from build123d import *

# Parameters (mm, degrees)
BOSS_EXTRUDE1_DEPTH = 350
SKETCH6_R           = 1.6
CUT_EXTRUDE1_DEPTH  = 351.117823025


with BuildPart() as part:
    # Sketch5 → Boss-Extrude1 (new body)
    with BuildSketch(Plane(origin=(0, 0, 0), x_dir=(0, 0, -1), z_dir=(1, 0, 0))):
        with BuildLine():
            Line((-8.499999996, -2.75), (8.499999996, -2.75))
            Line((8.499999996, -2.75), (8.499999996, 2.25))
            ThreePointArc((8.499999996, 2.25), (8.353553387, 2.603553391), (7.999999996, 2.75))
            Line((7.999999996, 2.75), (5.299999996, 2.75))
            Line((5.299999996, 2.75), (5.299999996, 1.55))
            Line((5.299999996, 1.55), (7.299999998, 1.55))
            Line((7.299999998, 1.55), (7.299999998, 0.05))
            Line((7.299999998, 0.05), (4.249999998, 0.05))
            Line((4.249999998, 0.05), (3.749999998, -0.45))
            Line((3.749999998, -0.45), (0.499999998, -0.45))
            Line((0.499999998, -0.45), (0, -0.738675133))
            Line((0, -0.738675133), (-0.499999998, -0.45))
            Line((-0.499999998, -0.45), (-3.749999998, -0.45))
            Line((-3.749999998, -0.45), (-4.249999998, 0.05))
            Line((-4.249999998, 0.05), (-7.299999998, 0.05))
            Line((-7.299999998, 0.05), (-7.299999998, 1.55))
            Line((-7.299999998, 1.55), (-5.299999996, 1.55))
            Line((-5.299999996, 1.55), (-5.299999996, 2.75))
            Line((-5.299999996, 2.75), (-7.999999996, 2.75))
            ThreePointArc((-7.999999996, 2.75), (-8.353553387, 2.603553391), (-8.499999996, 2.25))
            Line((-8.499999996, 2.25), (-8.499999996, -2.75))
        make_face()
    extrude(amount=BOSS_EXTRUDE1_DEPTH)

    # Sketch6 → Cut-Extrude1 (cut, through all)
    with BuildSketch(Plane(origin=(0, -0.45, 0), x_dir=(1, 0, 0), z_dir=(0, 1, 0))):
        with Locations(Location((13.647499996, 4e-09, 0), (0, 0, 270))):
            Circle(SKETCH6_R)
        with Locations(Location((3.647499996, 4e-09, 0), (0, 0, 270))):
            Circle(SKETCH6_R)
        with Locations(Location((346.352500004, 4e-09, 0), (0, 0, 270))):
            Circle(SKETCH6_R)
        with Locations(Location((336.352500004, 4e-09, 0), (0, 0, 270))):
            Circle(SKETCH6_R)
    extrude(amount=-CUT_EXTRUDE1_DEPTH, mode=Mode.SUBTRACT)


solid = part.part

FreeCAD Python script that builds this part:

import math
import FreeCAD as App
import Part
import Sketcher
from FreeCAD import Vector
Q = App.Units.Quantity

doc = App.newDocument("Part")
body = doc.addObject("PartDesign::Body", "Body")

# Sketch on YZ plane
sketch1 = doc.addObject("Sketcher::SketchObject", "Sketch")
body.addObject(sketch1)
sketch1.AttachmentSupport = (doc.YZ_Plane, [""])
sketch1.MapMode = "FlatFace"
sketch1.addGeometry([
    Part.LineSegment(Vector(-2.75, 8.5, 0), Vector(-2.75, -8.5, 0)),  # 0
    Part.LineSegment(Vector(-2.75, -8.5, 0), Vector(2.25, -8.5, 0)),  # 1
    Part.ArcOfCircle(Part.Circle(Vector(2.25, -8, 0), Vector(0, 0, 1), 0.5), math.radians(-90), math.radians(0)),  # 2
    Part.LineSegment(Vector(2.75, -8, 0), Vector(2.75, -5.3, 0)),  # 3
    Part.LineSegment(Vector(2.75, -5.3, 0), Vector(1.55, -5.3, 0)),  # 4
    Part.LineSegment(Vector(1.55, -5.3, 0), Vector(1.55, -7.3, 0)),  # 5
    Part.LineSegment(Vector(1.55, -7.3, 0), Vector(0.05, -7.3, 0)),  # 6
    Part.LineSegment(Vector(0.05, -7.3, 0), Vector(0.05, -4.25, 0)),  # 7
    Part.LineSegment(Vector(0.05, -4.25, 0), Vector(-0.45, -3.75, 0)),  # 8
    Part.LineSegment(Vector(-0.45, -3.75, 0), Vector(-0.45, -0.5, 0)),  # 9
    Part.LineSegment(Vector(-0.45, -0.5, 0), Vector(-0.74, 0, 0)),  # 10
    Part.LineSegment(Vector(-0.74, 0, 0), Vector(-0.45, 0.5, 0)),  # 11
    Part.LineSegment(Vector(-0.45, 0.5, 0), Vector(-0.45, 3.75, 0)),  # 12
    Part.LineSegment(Vector(-0.45, 3.75, 0), Vector(0.05, 4.25, 0)),  # 13
    Part.LineSegment(Vector(0.05, 4.25, 0), Vector(0.05, 7.3, 0)),  # 14
    Part.LineSegment(Vector(0.05, 7.3, 0), Vector(1.55, 7.3, 0)),  # 15
    Part.LineSegment(Vector(1.55, 7.3, 0), Vector(1.55, 5.3, 0)),  # 16
    Part.LineSegment(Vector(1.55, 5.3, 0), Vector(2.75, 5.3, 0)),  # 17
    Part.LineSegment(Vector(2.75, 5.3, 0), Vector(2.75, 8, 0)),  # 18
    Part.ArcOfCircle(Part.Circle(Vector(2.25, 8, 0), Vector(0, 0, 1), 0.5), math.radians(0), math.radians(90)),  # 19
    Part.LineSegment(Vector(2.25, 8.5, 0), Vector(-2.75, 8.5, 0)),  # 20
], False)
sketch1.addConstraint([
    Sketcher.Constraint("Coincident", 0, 2, 1, 1),
    Sketcher.Constraint("Tangent", 1, 2, 2, 1),
    Sketcher.Constraint("Tangent", 2, 2, 3, 1),
    Sketcher.Constraint("Coincident", 3, 2, 4, 1),
    Sketcher.Constraint("Coincident", 4, 2, 5, 1),
    Sketcher.Constraint("Coincident", 5, 2, 6, 1),
    Sketcher.Constraint("Coincident", 6, 2, 7, 1),
    Sketcher.Constraint("Coincident", 7, 2, 8, 1),
    Sketcher.Constraint("Coincident", 8, 2, 9, 1),
    Sketcher.Constraint("Coincident", 9, 2, 10, 1),
    Sketcher.Constraint("Coincident", 10, 2, 11, 1),
    Sketcher.Constraint("Coincident", 11, 2, 12, 1),
    Sketcher.Constraint("Coincident", 12, 2, 13, 1),
    Sketcher.Constraint("Coincident", 13, 2, 14, 1),
    Sketcher.Constraint("Coincident", 14, 2, 15, 1),
    Sketcher.Constraint("Coincident", 15, 2, 16, 1),
    Sketcher.Constraint("Coincident", 16, 2, 17, 1),
    Sketcher.Constraint("Coincident", 17, 2, 18, 1),
    Sketcher.Constraint("Tangent", 18, 2, 19, 1),
    Sketcher.Constraint("Tangent", 19, 2, 20, 1),
    Sketcher.Constraint("Coincident", 20, 2, 0, 1),
    Sketcher.Constraint("Vertical", 0),
    Sketcher.Constraint("Horizontal", 1),
    Sketcher.Constraint("Vertical", 3),
    Sketcher.Constraint("Horizontal", 4),
    Sketcher.Constraint("Vertical", 5),
    Sketcher.Constraint("Horizontal", 6),
    Sketcher.Constraint("Vertical", 7),
    Sketcher.Constraint("Vertical", 9),
    Sketcher.Constraint("Vertical", 12),
    Sketcher.Constraint("Vertical", 14),
    Sketcher.Constraint("Horizontal", 15),
    Sketcher.Constraint("Vertical", 16),
    Sketcher.Constraint("Horizontal", 17),
    Sketcher.Constraint("Vertical", 18),
    Sketcher.Constraint("Horizontal", 20),
    Sketcher.Constraint("Equal", 2, 19),
    Sketcher.Constraint("Symmetric", 2, 3, 19, 3, -1),
    Sketcher.Constraint("Symmetric", 9, 2, 11, 2, -1),
    Sketcher.Constraint("Symmetric", 7, 2, 13, 2, -1),
    Sketcher.Constraint("Symmetric", 5, 2, 15, 2, -1),
    Sketcher.Constraint("PointOnObject", 10, 2, -1),
    Sketcher.Constraint("Perpendicular", 8, 13),
    Sketcher.Constraint("Equal", 9, 12),
    Sketcher.Constraint("Equal", 5, 16),
    Sketcher.Constraint("Radius", 2, 0.5),
    Sketcher.Constraint("DistanceX", 1, 1, 1, 2, 5.0),
    Sketcher.Constraint("DistanceY", 0, 2, 0, 1, 17.0),
    Sketcher.Constraint("DistanceY", 5, 2, 5, 1, 2.0),
    Sketcher.Constraint("Angle", 10, Q("120 deg")),
    Sketcher.Constraint("DistanceX", 4, 2, 4, 1, 1.2),
    Sketcher.Constraint("DistanceX", 6, 2, 6, 1, 1.5),
    Sketcher.Constraint("DistanceY", 3, 1, 3, 2, 2.7),
    Sketcher.Constraint("DistanceX", 8, 2, 4, 2, 2.0),
    Sketcher.Constraint("DistanceY", 9, 2, 11, 2, 1.0),
    Sketcher.Constraint("DistanceY", 7, 1, 7, 2, 3.05),
    Sketcher.Constraint("DistanceX", -1, 1, 2, 3, 2.25),
])
pad1 = doc.addObject("PartDesign::Pad", "Pad")
body.addObject(pad1)
pad1.Profile = sketch1
pad1.Length = 350

# Sketch on XZ plane
sketch2 = doc.addObject("Sketcher::SketchObject", "Sketch001")
body.addObject(sketch2)
sketch2.AttachmentSupport = (doc.XZ_Plane, [""])
sketch2.MapMode = "FlatFace"
sketch2.AttachmentOffset = App.Placement(Vector(0, 0, 0.45), App.Rotation())
sketch2.addGeometry([
    Part.Circle(Vector(13.6, 0, 0), Vector(0, 0, 1), 1.6),
    Part.Circle(Vector(3.6, 0, 0), Vector(0, 0, 1), 1.6),
    Part.Circle(Vector(346.4, 0, 0), Vector(0, 0, 1), 1.6),
    Part.Circle(Vector(336.4, 0, 0), Vector(0, 0, 1), 1.6),
], False)
sketch2.addConstraint([
    Sketcher.Constraint("Equal", 0, 1),
    Sketcher.Constraint("Equal", 1, 2),
    Sketcher.Constraint("Equal", 2, 3),
    Sketcher.Constraint("PointOnObject", 0, 3, -1),
    Sketcher.Constraint("PointOnObject", 1, 3, -1),
    Sketcher.Constraint("PointOnObject", 2, 3, -1),
    Sketcher.Constraint("PointOnObject", 3, 3, -1),
    Sketcher.Constraint("Diameter", 0, 3.2),
    Sketcher.Constraint("DistanceX", 1, 3, 0, 3, 10.0),
    Sketcher.Constraint("DistanceX", 3, 3, 2, 3, 10.0),
    Sketcher.Constraint("DistanceX", 0, 3, 2, 3, 332.705),
    Sketcher.Constraint("DistanceX", -1, 1, 0, 3, 13.6475),
])
pocket1 = doc.addObject("PartDesign::Pocket", "Pocket")
body.addObject(pocket1)
pocket1.Profile = sketch2
pocket1.Type = "ThroughAll"
pocket1.Reversed = True

doc.recompute()
